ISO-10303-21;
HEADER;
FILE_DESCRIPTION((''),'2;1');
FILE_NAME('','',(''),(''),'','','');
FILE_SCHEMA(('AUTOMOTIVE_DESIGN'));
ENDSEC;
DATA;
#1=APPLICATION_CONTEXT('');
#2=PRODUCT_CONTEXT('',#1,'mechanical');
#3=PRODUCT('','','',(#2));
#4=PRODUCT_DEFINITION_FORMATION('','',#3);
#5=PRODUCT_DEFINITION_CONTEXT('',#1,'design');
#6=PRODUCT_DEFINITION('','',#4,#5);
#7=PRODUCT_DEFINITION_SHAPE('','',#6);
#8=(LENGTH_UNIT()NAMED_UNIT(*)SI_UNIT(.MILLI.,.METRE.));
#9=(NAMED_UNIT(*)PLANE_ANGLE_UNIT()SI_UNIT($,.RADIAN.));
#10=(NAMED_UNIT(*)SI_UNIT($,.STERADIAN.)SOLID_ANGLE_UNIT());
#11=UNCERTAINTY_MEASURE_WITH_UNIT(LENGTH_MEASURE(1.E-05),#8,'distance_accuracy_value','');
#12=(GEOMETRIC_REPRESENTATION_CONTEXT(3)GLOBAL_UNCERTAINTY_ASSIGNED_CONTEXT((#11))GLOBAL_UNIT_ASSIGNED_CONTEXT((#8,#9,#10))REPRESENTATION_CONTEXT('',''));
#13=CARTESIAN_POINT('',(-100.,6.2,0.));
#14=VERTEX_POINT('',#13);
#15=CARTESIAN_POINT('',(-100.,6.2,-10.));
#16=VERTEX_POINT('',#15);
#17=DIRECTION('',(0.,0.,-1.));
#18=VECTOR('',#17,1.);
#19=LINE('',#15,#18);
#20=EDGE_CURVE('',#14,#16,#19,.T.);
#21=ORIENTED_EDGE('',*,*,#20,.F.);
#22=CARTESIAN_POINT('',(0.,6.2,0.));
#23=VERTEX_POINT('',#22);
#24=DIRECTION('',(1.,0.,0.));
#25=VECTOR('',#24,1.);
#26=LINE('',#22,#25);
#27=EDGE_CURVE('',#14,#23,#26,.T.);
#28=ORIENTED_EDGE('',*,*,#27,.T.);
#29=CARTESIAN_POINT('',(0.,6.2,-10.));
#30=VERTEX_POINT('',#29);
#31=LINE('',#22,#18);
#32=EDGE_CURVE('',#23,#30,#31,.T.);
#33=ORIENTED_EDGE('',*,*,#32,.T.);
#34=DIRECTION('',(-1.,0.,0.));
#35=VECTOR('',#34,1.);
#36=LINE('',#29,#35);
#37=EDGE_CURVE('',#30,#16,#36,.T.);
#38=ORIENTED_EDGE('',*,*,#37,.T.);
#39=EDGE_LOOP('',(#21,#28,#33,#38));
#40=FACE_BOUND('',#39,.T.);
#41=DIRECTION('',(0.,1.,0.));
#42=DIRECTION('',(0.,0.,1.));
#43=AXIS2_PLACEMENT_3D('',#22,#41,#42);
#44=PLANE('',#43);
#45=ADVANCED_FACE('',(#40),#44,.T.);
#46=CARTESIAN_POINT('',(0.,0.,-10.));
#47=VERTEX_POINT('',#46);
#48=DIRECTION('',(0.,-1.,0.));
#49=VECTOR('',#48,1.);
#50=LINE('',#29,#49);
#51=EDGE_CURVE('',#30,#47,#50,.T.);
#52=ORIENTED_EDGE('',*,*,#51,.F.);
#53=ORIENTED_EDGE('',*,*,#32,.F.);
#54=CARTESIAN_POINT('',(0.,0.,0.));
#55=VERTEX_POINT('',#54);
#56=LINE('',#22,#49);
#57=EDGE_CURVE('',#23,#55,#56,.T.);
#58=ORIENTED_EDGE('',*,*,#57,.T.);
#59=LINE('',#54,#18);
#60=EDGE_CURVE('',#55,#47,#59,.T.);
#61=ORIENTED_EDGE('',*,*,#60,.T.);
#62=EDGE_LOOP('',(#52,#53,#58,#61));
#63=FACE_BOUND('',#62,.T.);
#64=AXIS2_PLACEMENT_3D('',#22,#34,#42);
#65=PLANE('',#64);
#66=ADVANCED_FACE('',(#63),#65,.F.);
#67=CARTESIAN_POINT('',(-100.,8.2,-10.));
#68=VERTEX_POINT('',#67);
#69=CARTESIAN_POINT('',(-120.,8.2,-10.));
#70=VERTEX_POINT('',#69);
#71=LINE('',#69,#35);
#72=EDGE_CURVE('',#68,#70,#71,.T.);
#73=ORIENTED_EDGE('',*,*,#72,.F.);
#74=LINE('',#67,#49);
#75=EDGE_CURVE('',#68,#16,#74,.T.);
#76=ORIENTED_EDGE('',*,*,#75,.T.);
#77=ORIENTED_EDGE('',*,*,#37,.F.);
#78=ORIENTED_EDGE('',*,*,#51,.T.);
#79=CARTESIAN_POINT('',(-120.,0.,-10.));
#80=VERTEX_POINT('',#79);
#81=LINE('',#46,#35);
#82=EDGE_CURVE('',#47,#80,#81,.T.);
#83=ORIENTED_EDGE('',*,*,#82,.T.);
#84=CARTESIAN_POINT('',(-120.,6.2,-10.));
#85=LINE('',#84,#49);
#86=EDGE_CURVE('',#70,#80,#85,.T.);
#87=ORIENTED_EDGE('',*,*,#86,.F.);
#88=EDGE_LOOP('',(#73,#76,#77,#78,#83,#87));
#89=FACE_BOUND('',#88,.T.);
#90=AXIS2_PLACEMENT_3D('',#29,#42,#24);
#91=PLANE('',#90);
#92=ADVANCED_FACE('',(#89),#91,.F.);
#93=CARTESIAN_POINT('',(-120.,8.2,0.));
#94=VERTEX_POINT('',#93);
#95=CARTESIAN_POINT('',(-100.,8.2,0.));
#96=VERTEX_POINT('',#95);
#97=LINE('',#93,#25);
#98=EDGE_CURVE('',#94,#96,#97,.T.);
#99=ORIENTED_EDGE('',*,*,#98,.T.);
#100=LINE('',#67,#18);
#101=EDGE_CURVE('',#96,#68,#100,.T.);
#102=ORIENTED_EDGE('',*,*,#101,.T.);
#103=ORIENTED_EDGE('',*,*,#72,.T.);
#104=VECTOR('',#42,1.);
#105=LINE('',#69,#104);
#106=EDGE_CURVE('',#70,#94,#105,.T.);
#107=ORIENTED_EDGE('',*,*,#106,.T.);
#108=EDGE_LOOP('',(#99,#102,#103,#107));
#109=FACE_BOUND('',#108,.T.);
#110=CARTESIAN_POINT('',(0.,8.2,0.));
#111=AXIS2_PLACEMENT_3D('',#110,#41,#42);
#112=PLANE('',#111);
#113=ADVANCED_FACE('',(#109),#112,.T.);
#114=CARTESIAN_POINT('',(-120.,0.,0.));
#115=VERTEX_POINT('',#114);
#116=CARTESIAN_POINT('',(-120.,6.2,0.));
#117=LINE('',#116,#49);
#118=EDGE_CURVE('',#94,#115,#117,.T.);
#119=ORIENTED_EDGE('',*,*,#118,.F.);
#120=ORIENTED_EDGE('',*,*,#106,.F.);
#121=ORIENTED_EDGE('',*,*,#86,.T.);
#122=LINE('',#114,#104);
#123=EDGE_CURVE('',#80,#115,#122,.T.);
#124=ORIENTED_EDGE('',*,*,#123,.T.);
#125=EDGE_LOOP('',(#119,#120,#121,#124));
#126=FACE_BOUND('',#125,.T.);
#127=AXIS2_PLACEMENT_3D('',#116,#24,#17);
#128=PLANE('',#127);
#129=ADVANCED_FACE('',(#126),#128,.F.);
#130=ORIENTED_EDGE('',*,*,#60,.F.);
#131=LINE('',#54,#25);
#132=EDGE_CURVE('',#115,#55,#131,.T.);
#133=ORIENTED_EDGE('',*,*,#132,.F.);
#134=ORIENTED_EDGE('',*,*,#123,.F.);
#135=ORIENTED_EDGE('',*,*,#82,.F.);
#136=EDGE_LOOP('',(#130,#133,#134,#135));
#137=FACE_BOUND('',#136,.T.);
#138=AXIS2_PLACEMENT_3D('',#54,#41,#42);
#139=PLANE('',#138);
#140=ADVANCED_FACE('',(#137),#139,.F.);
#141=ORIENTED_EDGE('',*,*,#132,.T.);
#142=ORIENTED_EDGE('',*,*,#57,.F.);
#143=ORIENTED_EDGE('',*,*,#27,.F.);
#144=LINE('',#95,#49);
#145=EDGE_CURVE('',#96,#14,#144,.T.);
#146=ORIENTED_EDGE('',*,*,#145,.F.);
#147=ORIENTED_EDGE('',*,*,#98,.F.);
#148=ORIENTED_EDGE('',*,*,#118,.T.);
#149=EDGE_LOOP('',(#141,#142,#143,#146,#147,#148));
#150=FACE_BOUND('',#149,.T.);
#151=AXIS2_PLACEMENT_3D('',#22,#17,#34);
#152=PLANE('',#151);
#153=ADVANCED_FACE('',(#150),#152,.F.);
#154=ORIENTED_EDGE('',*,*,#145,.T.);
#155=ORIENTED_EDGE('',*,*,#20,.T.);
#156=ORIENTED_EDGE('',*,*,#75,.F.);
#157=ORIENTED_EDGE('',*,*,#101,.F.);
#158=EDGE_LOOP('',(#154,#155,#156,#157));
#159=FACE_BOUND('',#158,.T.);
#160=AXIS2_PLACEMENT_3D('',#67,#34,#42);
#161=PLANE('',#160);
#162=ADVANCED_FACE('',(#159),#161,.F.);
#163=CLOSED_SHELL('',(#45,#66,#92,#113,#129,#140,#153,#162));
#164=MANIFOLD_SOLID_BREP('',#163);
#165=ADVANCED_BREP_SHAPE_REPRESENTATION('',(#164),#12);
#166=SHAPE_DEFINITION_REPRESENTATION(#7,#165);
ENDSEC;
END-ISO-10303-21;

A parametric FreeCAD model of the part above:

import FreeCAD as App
import Part
import Sketcher

doc = App.newDocument("Part")
body = doc.addObject("PartDesign::Body", "Body")

# Sketch on XZ plane
sketch1 = body.newObject("Sketcher::SketchObject", "Sketch")
sketch1.AttachmentSupport = (doc.getObject("XZ_Plane"), [""])
sketch1.MapMode = "FlatFace"
sketch1.addGeometry([
    Part.LineSegment(App.Vector(-120, -10, 0), App.Vector(-120, 0, 0)),
    Part.LineSegment(App.Vector(-120, 0, 0), App.Vector(0, 0, 0)),
    Part.LineSegment(App.Vector(0, 0, 0), App.Vector(0, -10, 0)),
    Part.LineSegment(App.Vector(0, -10, 0), App.Vector(-120, -10, 0)),
], False)
sketch1.addConstraint([
    Sketcher.Constraint("Coincident", 0, 2, 1, 1),
    Sketcher.Constraint("Coincident", 1, 2, 2, 1),
    Sketcher.Constraint("Coincident", 2, 2, 3, 1),
    Sketcher.Constraint("Coincident", 3, 2, 0, 1),
    Sketcher.Constraint("Vertical", 0),
    Sketcher.Constraint("Horizontal", 1),
    Sketcher.Constraint("Vertical", 2),
    Sketcher.Constraint("Horizontal", 3),
    Sketcher.Constraint("Coincident", 1, 2, -1, 1),
    Sketcher.Constraint("DistanceX", 1, 1, 1, 2, 120.0),
    Sketcher.Constraint("DistanceY", 0, 1, 0, 2, 10.0),
])
pad1 = body.newObject("PartDesign::Pad", "Pad")
pad1.Profile = sketch1
pad1.Length = 6.2
pad1.Reversed = True

# Sketch on XZ plane
sketch2 = body.newObject("Sketcher::SketchObject", "Sketch001")
sketch2.AttachmentSupport = (doc.getObject("XZ_Plane"), [""])
sketch2.MapMode = "FlatFace"
sketch2.AttachmentOffset = App.Placement(App.Vector(0, 0, -6.2), App.Rotation())
sketch2.addGeometry([
    Part.LineSegment(App.Vector(-120, -10, 0), App.Vector(-120, 0, 0)),
    Part.LineSegment(App.Vector(-120, 0, 0), App.Vector(-100, 0, 0)),
    Part.LineSegment(App.Vector(-100, 0, 0), App.Vector(-100, -10, 0)),
    Part.LineSegment(App.Vector(-100, -10, 0), App.Vector(-120, -10, 0)),
], False)
sketch2.addConstraint([
    Sketcher.Constraint("Coincident", 0, 2, 1, 1),
    Sketcher.Constraint("Coincident", 1, 2, 2, 1),
    Sketcher.Constraint("Coincident", 2, 2, 3, 1),
    Sketcher.Constraint("Coincident", 3, 2, 0, 1),
    Sketcher.Constraint("Vertical", 0),
    Sketcher.Constraint("Horizontal", 1),
    Sketcher.Constraint("Vertical", 2),
    Sketcher.Constraint("Horizontal", 3),
    Sketcher.Constraint("PointOnObject", 0, 2, -1),
    Sketcher.Constraint("DistanceX", 1, 1, 1, 2, 20.0),
    Sketcher.Constraint("DistanceY", 0, 1, 0, 2, 10.0),
    Sketcher.Constraint("DistanceX", 0, 2, -1, 1, 120.0),
])
pad2 = body.newObject("PartDesign::Pad", "Pad001")
pad2.Profile = sketch2
pad2.Length = 2
pad2.Reversed = True

doc.recompute()
